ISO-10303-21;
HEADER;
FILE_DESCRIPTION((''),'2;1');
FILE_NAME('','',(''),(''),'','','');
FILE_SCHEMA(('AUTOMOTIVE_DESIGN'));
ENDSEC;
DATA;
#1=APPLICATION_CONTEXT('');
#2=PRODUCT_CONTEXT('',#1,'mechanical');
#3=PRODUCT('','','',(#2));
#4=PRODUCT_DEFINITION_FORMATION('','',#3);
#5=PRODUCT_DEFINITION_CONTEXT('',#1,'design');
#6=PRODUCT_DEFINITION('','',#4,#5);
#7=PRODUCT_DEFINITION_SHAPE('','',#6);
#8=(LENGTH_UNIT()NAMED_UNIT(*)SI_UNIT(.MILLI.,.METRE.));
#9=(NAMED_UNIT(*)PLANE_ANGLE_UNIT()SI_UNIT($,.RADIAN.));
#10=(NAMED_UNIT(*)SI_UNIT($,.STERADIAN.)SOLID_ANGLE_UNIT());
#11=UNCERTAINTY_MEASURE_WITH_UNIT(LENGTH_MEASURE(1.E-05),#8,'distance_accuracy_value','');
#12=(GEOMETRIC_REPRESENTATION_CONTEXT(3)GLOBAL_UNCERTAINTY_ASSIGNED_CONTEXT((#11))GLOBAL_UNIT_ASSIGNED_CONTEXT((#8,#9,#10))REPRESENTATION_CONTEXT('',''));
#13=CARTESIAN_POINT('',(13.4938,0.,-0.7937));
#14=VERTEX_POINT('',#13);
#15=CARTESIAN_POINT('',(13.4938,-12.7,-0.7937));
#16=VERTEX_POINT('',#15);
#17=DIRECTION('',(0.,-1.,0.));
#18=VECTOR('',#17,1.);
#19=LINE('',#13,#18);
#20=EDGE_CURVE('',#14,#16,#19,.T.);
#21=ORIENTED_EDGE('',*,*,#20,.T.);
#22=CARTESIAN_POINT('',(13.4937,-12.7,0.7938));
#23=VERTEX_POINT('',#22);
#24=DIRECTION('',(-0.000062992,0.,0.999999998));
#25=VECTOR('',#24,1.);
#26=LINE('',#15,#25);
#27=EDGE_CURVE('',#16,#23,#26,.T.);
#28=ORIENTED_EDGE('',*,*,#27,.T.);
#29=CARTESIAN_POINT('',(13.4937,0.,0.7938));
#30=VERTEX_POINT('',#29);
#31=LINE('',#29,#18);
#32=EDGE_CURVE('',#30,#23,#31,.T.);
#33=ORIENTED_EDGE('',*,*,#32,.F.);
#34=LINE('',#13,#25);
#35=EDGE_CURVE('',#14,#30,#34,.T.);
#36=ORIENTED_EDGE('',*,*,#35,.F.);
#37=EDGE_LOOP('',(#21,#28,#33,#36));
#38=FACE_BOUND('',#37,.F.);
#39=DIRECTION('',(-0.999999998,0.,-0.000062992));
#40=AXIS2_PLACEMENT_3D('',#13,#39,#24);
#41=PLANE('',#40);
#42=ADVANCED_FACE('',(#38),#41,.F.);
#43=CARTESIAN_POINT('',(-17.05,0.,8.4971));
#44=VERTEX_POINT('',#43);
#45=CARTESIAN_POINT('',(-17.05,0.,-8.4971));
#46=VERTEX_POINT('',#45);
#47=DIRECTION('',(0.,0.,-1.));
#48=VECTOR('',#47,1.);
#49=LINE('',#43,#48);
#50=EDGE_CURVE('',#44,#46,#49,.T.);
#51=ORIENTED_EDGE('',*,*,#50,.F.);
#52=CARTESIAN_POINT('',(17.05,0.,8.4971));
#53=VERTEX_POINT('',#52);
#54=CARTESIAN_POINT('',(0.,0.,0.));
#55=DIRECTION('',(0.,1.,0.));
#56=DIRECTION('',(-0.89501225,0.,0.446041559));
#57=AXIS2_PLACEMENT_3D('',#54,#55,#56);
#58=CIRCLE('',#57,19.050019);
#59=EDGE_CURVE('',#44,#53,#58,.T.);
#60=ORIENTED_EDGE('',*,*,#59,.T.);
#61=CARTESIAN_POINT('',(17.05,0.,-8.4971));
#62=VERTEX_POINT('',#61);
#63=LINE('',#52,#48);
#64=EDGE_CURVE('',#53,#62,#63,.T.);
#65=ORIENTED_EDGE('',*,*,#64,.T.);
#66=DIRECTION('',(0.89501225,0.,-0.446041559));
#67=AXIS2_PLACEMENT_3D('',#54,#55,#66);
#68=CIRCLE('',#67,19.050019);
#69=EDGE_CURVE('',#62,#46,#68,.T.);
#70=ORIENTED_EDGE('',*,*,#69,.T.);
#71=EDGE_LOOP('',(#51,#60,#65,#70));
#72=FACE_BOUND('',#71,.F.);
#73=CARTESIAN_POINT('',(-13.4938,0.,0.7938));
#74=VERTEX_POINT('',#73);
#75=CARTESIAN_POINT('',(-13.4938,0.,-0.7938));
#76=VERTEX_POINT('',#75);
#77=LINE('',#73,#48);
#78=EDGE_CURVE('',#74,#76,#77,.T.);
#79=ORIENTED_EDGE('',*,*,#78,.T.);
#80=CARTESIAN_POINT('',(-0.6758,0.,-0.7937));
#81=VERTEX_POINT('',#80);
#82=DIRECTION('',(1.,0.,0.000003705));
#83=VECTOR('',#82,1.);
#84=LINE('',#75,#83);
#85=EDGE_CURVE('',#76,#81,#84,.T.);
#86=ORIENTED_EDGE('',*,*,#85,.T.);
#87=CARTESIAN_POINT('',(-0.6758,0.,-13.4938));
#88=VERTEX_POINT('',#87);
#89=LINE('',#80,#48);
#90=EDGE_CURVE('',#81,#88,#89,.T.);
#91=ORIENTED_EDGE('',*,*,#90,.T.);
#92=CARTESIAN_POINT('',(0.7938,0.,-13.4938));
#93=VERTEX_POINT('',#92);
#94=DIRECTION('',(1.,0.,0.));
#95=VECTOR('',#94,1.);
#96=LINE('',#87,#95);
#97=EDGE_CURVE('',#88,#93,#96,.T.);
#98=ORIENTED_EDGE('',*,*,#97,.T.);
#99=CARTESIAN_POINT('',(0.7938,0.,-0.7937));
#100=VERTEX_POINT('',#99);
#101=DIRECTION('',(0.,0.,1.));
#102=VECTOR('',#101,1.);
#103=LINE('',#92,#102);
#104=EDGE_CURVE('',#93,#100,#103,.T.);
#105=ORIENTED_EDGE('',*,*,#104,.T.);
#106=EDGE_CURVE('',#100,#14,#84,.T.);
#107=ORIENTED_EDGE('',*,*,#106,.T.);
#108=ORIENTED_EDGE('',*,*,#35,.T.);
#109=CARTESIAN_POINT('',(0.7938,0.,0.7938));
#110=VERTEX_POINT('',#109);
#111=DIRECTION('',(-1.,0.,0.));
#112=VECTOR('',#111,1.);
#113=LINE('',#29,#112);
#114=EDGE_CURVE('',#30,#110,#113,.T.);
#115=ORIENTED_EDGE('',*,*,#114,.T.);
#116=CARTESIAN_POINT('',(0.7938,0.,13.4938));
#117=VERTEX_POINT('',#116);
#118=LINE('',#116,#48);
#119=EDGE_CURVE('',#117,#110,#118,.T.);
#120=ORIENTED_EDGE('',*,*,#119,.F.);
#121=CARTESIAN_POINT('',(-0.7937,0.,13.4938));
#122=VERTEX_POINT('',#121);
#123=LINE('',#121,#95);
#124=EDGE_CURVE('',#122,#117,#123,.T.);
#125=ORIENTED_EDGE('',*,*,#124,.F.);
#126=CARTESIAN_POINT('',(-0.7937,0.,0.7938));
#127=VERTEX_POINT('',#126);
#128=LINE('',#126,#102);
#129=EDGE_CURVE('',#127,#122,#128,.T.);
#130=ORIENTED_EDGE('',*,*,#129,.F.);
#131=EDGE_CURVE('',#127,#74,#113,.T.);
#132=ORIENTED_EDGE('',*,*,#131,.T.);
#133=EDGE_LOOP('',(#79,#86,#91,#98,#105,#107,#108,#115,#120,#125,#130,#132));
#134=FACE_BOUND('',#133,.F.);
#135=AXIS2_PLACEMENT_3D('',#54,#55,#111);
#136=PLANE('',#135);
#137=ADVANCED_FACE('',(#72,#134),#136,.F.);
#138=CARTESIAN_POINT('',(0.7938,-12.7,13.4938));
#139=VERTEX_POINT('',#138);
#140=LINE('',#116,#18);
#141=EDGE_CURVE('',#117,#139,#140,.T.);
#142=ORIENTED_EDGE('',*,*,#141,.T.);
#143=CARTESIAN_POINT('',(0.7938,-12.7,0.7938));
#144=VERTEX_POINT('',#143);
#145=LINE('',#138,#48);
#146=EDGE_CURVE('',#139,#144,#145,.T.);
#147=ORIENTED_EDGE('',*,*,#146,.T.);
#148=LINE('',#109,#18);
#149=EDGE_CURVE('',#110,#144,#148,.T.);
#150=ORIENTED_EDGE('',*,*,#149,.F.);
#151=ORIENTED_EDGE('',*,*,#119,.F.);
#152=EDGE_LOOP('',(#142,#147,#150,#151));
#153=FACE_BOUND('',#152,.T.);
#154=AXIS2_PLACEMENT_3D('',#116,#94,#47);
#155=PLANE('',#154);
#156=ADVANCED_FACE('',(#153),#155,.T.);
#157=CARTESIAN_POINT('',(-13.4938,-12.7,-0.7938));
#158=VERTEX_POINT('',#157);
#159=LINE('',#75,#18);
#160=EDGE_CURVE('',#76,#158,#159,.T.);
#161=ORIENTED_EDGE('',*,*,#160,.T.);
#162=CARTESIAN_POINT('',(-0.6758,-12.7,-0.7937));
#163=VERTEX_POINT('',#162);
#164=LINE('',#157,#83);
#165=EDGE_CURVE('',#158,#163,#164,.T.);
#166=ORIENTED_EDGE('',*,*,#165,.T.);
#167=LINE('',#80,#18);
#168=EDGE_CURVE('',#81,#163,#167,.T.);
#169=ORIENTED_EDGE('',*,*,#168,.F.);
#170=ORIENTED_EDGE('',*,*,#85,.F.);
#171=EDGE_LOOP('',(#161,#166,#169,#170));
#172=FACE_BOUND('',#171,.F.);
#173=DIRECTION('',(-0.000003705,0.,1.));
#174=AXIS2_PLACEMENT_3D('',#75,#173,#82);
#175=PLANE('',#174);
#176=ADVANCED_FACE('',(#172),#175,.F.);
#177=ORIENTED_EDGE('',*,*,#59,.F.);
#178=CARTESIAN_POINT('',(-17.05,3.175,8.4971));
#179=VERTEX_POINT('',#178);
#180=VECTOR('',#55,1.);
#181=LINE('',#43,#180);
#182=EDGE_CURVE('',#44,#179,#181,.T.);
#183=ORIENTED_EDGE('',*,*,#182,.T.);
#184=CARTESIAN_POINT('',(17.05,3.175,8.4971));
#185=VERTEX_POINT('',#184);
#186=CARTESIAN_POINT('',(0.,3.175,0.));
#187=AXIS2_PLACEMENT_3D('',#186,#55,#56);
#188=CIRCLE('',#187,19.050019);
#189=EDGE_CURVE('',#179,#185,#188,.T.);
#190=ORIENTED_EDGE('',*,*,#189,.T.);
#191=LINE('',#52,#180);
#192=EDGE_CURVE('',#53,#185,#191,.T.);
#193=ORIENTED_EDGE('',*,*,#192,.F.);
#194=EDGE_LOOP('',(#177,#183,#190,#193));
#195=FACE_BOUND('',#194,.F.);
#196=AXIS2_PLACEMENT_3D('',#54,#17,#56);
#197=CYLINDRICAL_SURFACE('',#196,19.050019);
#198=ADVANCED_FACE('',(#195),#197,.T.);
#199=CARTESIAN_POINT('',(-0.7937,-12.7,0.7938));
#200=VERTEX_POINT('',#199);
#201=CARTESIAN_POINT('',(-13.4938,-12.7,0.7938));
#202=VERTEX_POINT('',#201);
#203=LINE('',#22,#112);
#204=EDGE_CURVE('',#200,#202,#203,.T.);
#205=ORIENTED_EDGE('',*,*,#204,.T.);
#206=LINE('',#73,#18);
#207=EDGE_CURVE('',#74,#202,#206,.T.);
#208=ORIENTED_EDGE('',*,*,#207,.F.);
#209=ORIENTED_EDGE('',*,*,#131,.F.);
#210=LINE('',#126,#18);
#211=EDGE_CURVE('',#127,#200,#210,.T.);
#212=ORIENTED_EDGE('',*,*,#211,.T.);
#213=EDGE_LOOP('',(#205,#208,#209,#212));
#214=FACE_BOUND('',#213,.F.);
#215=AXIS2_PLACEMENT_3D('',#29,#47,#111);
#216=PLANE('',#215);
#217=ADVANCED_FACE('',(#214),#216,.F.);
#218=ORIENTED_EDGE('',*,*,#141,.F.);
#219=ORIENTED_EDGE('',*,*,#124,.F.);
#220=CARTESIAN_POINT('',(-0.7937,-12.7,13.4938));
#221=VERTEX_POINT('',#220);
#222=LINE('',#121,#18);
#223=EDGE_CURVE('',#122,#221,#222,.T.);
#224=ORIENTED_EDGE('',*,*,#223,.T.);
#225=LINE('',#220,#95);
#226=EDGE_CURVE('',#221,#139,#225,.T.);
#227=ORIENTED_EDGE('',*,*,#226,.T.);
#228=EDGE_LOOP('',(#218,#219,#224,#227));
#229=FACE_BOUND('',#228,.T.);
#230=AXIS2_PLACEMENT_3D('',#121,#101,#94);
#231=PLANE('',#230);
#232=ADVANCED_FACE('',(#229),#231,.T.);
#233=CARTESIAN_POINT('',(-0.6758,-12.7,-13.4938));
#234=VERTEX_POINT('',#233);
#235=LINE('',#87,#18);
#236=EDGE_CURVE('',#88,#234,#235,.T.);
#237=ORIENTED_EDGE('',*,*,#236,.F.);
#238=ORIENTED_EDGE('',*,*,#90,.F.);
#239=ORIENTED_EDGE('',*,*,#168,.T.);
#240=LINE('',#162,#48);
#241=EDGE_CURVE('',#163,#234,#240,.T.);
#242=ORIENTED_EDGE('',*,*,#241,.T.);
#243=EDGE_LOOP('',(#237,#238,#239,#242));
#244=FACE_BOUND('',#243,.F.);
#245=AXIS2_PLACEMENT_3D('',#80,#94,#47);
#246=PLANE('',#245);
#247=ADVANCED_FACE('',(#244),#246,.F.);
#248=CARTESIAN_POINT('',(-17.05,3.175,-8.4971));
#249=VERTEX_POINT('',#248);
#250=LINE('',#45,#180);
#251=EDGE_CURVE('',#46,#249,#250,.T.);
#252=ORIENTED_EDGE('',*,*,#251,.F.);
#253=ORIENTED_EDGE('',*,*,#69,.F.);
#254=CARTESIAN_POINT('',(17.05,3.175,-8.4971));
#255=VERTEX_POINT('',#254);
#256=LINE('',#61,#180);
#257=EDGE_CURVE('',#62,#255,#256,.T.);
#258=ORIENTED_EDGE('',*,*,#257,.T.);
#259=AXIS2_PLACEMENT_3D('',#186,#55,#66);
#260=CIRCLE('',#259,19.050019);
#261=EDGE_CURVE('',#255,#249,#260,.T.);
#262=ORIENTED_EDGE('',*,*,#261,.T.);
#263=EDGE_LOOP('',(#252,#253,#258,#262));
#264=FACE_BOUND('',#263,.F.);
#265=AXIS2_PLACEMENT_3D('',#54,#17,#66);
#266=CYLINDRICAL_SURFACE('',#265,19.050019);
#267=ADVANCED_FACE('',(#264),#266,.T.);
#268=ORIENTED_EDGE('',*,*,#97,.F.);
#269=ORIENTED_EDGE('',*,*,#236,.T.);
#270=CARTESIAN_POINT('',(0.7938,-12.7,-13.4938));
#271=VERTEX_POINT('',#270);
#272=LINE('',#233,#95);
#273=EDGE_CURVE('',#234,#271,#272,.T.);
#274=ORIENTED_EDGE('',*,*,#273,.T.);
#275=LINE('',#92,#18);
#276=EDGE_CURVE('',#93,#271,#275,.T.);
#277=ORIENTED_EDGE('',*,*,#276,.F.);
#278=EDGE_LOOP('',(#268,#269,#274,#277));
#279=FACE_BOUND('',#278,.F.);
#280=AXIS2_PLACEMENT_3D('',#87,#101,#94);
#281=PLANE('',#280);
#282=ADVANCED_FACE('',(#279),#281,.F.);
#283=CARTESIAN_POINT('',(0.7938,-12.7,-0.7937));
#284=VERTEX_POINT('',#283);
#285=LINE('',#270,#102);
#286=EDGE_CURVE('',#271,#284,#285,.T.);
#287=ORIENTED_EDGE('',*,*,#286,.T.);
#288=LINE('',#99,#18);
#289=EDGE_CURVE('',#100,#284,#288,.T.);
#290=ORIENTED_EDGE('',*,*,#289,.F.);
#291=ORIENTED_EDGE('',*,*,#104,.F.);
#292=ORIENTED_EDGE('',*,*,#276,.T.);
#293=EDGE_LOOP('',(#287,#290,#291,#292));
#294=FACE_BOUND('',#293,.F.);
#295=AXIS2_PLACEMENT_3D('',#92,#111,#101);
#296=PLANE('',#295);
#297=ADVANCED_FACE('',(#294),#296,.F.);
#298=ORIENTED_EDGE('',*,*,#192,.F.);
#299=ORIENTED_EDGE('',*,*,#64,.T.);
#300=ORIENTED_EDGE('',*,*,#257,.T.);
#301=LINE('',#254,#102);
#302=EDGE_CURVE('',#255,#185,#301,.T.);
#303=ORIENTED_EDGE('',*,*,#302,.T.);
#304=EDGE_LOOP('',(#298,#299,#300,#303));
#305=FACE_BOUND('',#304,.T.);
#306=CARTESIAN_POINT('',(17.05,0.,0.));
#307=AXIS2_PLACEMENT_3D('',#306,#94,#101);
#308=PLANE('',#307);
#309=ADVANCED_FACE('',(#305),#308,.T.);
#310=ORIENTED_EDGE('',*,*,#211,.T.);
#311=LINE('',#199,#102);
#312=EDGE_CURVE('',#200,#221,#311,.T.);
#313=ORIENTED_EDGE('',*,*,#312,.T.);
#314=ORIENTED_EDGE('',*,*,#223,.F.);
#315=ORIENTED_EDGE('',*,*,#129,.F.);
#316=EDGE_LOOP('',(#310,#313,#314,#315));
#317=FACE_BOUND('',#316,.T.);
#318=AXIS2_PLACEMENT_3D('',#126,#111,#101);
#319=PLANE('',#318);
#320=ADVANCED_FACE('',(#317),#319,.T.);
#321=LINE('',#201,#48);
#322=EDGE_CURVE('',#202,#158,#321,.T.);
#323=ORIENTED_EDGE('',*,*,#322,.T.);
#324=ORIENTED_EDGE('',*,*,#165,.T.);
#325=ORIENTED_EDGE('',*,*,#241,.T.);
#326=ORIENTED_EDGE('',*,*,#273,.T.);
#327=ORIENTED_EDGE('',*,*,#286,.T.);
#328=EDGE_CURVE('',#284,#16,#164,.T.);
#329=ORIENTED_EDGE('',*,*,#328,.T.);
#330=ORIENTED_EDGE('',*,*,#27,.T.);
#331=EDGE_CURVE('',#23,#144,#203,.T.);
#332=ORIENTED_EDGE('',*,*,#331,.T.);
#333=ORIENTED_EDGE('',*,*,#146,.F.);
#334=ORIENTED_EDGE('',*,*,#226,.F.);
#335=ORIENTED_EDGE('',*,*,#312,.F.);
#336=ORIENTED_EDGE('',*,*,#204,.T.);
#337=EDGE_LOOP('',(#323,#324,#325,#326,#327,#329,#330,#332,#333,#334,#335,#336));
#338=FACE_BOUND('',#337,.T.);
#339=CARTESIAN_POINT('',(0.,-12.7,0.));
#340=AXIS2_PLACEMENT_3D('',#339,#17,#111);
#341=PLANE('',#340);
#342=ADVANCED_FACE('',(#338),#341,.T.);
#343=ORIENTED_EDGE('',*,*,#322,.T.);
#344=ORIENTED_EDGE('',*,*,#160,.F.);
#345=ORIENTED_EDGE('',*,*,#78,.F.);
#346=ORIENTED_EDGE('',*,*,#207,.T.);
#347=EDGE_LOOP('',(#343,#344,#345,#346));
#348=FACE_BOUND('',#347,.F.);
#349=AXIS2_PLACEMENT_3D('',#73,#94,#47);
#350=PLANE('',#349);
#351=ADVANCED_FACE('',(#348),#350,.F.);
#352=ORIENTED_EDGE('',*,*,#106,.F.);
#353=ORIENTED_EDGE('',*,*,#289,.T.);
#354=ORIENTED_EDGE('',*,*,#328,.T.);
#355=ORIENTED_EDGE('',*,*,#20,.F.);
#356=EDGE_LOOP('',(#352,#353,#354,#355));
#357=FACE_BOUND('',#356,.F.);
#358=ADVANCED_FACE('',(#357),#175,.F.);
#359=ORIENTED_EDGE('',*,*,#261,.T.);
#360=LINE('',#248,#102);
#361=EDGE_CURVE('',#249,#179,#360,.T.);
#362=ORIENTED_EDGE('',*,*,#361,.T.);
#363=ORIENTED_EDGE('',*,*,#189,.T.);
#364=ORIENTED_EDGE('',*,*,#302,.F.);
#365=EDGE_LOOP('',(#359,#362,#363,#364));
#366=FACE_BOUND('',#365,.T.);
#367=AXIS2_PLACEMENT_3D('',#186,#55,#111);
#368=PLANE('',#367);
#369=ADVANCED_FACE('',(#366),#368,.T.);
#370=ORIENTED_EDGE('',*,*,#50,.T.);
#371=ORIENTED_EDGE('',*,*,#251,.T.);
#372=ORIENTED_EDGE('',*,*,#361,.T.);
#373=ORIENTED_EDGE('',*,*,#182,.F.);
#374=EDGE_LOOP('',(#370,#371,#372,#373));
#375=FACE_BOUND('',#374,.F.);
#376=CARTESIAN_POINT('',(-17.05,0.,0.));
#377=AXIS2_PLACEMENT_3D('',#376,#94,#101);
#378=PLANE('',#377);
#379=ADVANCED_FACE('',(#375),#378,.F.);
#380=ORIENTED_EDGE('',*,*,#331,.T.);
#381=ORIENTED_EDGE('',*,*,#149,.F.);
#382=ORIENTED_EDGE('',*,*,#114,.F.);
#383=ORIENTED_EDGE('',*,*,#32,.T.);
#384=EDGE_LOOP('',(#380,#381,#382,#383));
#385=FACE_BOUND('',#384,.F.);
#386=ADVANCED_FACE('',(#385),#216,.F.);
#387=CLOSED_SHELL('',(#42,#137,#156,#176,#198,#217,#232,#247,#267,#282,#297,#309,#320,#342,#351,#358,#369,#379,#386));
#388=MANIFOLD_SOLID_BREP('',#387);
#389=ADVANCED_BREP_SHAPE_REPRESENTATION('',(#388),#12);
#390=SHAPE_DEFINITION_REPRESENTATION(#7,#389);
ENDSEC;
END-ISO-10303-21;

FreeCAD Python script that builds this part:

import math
import FreeCAD as App
import Part
import Sketcher
Q = App.Units.Quantity

doc = App.newDocument("Part")
body = doc.addObject("PartDesign::Body", "Body")

sketch1 = doc.addObject("Sketcher::SketchObject", "Sketch")
body.addObject(sketch1)
sketch1.AttachmentSupport = (doc.XZ_Plane, [""])
sketch1.MapMode = "FlatFace"
sketch1.addGeometry(Part.LineSegment(App.Vector(17, 8, 0), App.Vector(17, -8, 0)), False)
sketch1.addGeometry(Part.ArcOfCircle(Part.Circle(App.Vector(0, 0, 0), App.Vector(0, 0, 1), 19), math.radians(-154), math.radians(-26)), False)
sketch1.addGeometry(Part.LineSegment(App.Vector(-17, -8, 0), App.Vector(-17, 8, 0)), False)
sketch1.addGeometry(Part.ArcOfCircle(Part.Circle(App.Vector(0, 0, 0), App.Vector(0, 0, 1), 19), math.radians(26), math.radians(154)), False)
sketch1.addConstraint(Sketcher.Constraint("Coincident", 0, 2, 1, 2))
sketch1.addConstraint(Sketcher.Constraint("Coincident", 1, 1, 2, 1))
sketch1.addConstraint(Sketcher.Constraint("Coincident", 2, 2, 3, 2))
sketch1.addConstraint(Sketcher.Constraint("Coincident", 3, 1, 0, 1))
sketch1.addConstraint(Sketcher.Constraint("Vertical", 0))
sketch1.addConstraint(Sketcher.Constraint("Vertical", 2))
sketch1.addConstraint(Sketcher.Constraint("Coincident", 1, 3, -1, 1))
sketch1.addConstraint(Sketcher.Constraint("Coincident", 3, 3, -1, 1))
sketch1.addConstraint(Sketcher.Constraint("Equal", 1, 3))
sketch1.addConstraint(Sketcher.Constraint("Horizontal", 0, 2, 1, 1))
sketch1.addConstraint(Sketcher.Constraint("Radius", 1, Q("0.75 in")))
sketch1.addConstraint(Sketcher.Constraint("DistanceY", 0, 2, 0, 1, Q("16.9942 mm")))
pad1 = doc.addObject("PartDesign::Pad", "Pad")
body.addObject(pad1)
pad1.Profile = sketch1
pad1.Length = Q("0.125 in")
pad1.Reversed = True

sketch2 = doc.addObject("Sketcher::SketchObject", "Sketch001")
body.addObject(sketch2)
sketch2.AttachmentSupport = (doc.XZ_Plane, [""])
sketch2.MapMode = "FlatFace"
sketch2.addGeometry(Part.LineSegment(App.Vector(13.5, -0.8, 0), App.Vector(13.5, 0.8, 0)), False)
sketch2.addGeometry(Part.LineSegment(App.Vector(13.5, 0.8, 0), App.Vector(-13.5, 0.8, 0)), False)
sketch2.addGeometry(Part.LineSegment(App.Vector(-13.5, 0.8, 0), App.Vector(-13.5, -0.8, 0)), False)
sketch2.addGeometry(Part.LineSegment(App.Vector(-13.5, -0.8, 0), App.Vector(13.5, -0.8, 0)), False)
sketch2.addConstraint(Sketcher.Constraint("Coincident", 0, 2, 1, 1))
sketch2.addConstraint(Sketcher.Constraint("Coincident", 1, 2, 2, 1))
sketch2.addConstraint(Sketcher.Constraint("Coincident", 2, 2, 3, 1))
sketch2.addConstraint(Sketcher.Constraint("Coincident", 3, 2, 0, 1))
sketch2.addConstraint(Sketcher.Constraint("Vertical", 0))
sketch2.addConstraint(Sketcher.Constraint("Horizontal", 1))
sketch2.addConstraint(Sketcher.Constraint("Vertical", 2))
sketch2.addConstraint(Sketcher.Constraint("Horizontal", 3))
sketch2.addConstraint(Sketcher.Constraint("Symmetric", 0, 2, 2, 2, -1, 1))
sketch2.addConstraint(Sketcher.Constraint("DistanceX", 1, 2, 1, 1, Q("1.0625 in")))
sketch2.addConstraint(Sketcher.Constraint("DistanceY", 0, 1, 0, 2, Q("0.0625 in")))
pad2 = doc.addObject("PartDesign::Pad", "Pad001")
body.addObject(pad2)
pad2.Profile = sketch2
pad2.Length = Q("0.5 in")

sketch3 = doc.addObject("Sketcher::SketchObject", "Sketch002")
body.addObject(sketch3)
sketch3.AttachmentSupport = (doc.XZ_Plane, [""])
sketch3.MapMode = "FlatFace"
sketch3.addGeometry(Part.LineSegment(App.Vector(0.8, -0.8, 0), App.Vector(-0.7, -0.8, 0)), False)
sketch3.addGeometry(Part.LineSegment(App.Vector(-0.7, -0.8, 0), App.Vector(-0.7, -13.5, 0)), False)
sketch3.addGeometry(Part.LineSegment(App.Vector(-0.7, -13.5, 0), App.Vector(0.8, -13.5, 0)), False)
sketch3.addGeometry(Part.LineSegment(App.Vector(0.8, -13.5, 0), App.Vector(0.8, -0.8, 0)), False)
sketch3.addConstraint(Sketcher.Constraint("Coincident", 0, 2, 1, 1))
sketch3.addConstraint(Sketcher.Constraint("Coincident", 1, 2, 2, 1))
sketch3.addConstraint(Sketcher.Constraint("Coincident", 2, 2, 3, 1))
sketch3.addConstraint(Sketcher.Constraint("Coincident", 3, 2, 0, 1))
sketch3.addConstraint(Sketcher.Constraint("Horizontal", 0))
sketch3.addConstraint(Sketcher.Constraint("Vertical", 1))
sketch3.addConstraint(Sketcher.Constraint("Horizontal", 2))
sketch3.addConstraint(Sketcher.Constraint("Vertical", 3))
sketch3.addConstraint(Sketcher.Constraint("DistanceY", 1, 2, 1, 1, Q("0.5 in")))
sketch3.addConstraint(Sketcher.Constraint("DistanceY", 0, 2, -1, 1, Q("0.031252 in")))
sketch3.addConstraint(Sketcher.Constraint("DistanceX", -1, 1, 2, 2, Q("0.031252 in")))
sketch3.addConstraint(Sketcher.Constraint("DistanceX", 0, 2, 0, 1, Q("1.4696 mm")))
pad3 = doc.addObject("PartDesign::Pad", "Pad002")
body.addObject(pad3)
pad3.Profile = sketch3
pad3.Length = Q("0.5 in")

sketch4 = doc.addObject("Sketcher::SketchObject", "Sketch003")
body.addObject(sketch4)
sketch4.AttachmentSupport = (doc.XZ_Plane, [""])
sketch4.MapMode = "FlatFace"
sketch4.addGeometry(Part.LineSegment(App.Vector(-0.8, 0.8, 0), App.Vector(0.8, 0.8, 0)), False)
sketch4.addGeometry(Part.LineSegment(App.Vector(0.8, 0.8, 0), App.Vector(0.8, 13.5, 0)), False)
sketch4.addGeometry(Part.LineSegment(App.Vector(0.8, 13.5, 0), App.Vector(-0.8, 13.5, 0)), False)
sketch4.addGeometry(Part.LineSegment(App.Vector(-0.8, 13.5, 0), App.Vector(-0.8, 0.8, 0)), False)
sketch4.addConstraint(Sketcher.Constraint("Coincident", 0, 2, 1, 1))
sketch4.addConstraint(Sketcher.Constraint("Coincident", 1, 2, 2, 1))
sketch4.addConstraint(Sketcher.Constraint("Coincident", 2, 2, 3, 1))
sketch4.addConstraint(Sketcher.Constraint("Coincident", 3, 2, 0, 1))
sketch4.addConstraint(Sketcher.Constraint("Horizontal", 0))
sketch4.addConstraint(Sketcher.Constraint("Vertical", 1))
sketch4.addConstraint(Sketcher.Constraint("Horizontal", 2))
sketch4.addConstraint(Sketcher.Constraint("Vertical", 3))
sketch4.addConstraint(Sketcher.Constraint("DistanceY", 1, 1, 1, 2, Q("0.5 in")))
sketch4.addConstraint(Sketcher.Constraint("DistanceX", 0, 1, 0, 2, Q("0.0625 in")))
sketch4.addConstraint(Sketcher.Constraint("DistanceX", -1, 1, 0, 2, Q("0.031252 in")))
sketch4.addConstraint(Sketcher.Constraint("DistanceY", -1, 1, 0, 2, Q("0.031252 in")))
pad4 = doc.addObject("PartDesign::Pad", "Pad003")
body.addObject(pad4)
pad4.Profile = sketch4
pad4.Length = Q("0.5 in")

doc.recompute()
